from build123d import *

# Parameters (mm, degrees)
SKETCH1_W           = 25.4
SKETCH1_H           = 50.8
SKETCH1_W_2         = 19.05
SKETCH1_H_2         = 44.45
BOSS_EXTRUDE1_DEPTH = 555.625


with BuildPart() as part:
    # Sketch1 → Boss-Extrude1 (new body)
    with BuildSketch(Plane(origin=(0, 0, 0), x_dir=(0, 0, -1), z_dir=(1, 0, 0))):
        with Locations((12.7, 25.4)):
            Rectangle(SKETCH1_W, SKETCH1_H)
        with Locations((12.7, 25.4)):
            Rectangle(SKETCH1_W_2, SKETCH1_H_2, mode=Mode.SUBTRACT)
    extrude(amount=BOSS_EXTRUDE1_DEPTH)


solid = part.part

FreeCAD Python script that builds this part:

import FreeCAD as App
import Part
import Sketcher
from FreeCAD import Vector
Q = App.Units.Quantity


def add_polygon(sketch, points):
    """Adds a closed chain of lines whose ends are joined by coincident constraints."""
    first, n = sketch.GeometryCount, len(points)
    for a, b in zip(points, points[1:] + points[:1]):
        sketch.addGeometry(Part.LineSegment(App.Vector(*a, 0), App.Vector(*b, 0)), False)
    for i in range(n):
        sketch.addConstraint(Sketcher.Constraint("Coincident", first + i, 2, first + (i + 1) % n, 1))

doc = App.newDocument("Part")
body = doc.addObject("PartDesign::Body", "Body")

# Sketch on YZ plane
sketch1 = body.newObject("Sketcher::SketchObject", "Sketch")
sketch1.AttachmentSupport = (doc.getObject("YZ_Plane"), [""])
sketch1.MapMode = "FlatFace"
add_polygon(sketch1, [(50.8, 0), (0, 0), (0, -25.4), (50.8, -25.4)])  # lines 0-3
add_polygon(sketch1, [(3.175, -22.225), (3.175, -3.175), (47.625, -3.175), (47.625, -22.225)])  # lines 4-7
sketch1.addConstraint([
    Sketcher.Constraint("Horizontal", 0),
    Sketcher.Constraint("Vertical", 1),
    Sketcher.Constraint("Horizontal", 2),
    Sketcher.Constraint("Vertical", 3),
    Sketcher.Constraint("Vertical", 4),
    Sketcher.Constraint("Horizontal", 5),
    Sketcher.Constraint("Vertical", 6),
    Sketcher.Constraint("Horizontal", 7),
    Sketcher.Constraint("Coincident", 0, 2, -1, 1),
    Sketcher.Constraint("DistanceX", 0, 2, 0, 1, Q("2 in")),
    Sketcher.Constraint("DistanceY", 1, 2, 1, 1, Q("1 in")),
    Sketcher.Constraint("DistanceX", 5, 1, 5, 2, Q("1.75 in")),
    Sketcher.Constraint("DistanceY", 4, 1, 4, 2, Q("0.75 in")),
    Sketcher.Constraint("DistanceX", -1, 1, 4, 2, Q("0.125 in")),
    Sketcher.Constraint("DistanceY", 4, 2, -1, 1, Q("0.125 in")),
])
pad1 = body.newObject("PartDesign::Pad", "Pad")
pad1.Profile = sketch1
pad1.Length = Q("21.875 in")

doc.recompute()
